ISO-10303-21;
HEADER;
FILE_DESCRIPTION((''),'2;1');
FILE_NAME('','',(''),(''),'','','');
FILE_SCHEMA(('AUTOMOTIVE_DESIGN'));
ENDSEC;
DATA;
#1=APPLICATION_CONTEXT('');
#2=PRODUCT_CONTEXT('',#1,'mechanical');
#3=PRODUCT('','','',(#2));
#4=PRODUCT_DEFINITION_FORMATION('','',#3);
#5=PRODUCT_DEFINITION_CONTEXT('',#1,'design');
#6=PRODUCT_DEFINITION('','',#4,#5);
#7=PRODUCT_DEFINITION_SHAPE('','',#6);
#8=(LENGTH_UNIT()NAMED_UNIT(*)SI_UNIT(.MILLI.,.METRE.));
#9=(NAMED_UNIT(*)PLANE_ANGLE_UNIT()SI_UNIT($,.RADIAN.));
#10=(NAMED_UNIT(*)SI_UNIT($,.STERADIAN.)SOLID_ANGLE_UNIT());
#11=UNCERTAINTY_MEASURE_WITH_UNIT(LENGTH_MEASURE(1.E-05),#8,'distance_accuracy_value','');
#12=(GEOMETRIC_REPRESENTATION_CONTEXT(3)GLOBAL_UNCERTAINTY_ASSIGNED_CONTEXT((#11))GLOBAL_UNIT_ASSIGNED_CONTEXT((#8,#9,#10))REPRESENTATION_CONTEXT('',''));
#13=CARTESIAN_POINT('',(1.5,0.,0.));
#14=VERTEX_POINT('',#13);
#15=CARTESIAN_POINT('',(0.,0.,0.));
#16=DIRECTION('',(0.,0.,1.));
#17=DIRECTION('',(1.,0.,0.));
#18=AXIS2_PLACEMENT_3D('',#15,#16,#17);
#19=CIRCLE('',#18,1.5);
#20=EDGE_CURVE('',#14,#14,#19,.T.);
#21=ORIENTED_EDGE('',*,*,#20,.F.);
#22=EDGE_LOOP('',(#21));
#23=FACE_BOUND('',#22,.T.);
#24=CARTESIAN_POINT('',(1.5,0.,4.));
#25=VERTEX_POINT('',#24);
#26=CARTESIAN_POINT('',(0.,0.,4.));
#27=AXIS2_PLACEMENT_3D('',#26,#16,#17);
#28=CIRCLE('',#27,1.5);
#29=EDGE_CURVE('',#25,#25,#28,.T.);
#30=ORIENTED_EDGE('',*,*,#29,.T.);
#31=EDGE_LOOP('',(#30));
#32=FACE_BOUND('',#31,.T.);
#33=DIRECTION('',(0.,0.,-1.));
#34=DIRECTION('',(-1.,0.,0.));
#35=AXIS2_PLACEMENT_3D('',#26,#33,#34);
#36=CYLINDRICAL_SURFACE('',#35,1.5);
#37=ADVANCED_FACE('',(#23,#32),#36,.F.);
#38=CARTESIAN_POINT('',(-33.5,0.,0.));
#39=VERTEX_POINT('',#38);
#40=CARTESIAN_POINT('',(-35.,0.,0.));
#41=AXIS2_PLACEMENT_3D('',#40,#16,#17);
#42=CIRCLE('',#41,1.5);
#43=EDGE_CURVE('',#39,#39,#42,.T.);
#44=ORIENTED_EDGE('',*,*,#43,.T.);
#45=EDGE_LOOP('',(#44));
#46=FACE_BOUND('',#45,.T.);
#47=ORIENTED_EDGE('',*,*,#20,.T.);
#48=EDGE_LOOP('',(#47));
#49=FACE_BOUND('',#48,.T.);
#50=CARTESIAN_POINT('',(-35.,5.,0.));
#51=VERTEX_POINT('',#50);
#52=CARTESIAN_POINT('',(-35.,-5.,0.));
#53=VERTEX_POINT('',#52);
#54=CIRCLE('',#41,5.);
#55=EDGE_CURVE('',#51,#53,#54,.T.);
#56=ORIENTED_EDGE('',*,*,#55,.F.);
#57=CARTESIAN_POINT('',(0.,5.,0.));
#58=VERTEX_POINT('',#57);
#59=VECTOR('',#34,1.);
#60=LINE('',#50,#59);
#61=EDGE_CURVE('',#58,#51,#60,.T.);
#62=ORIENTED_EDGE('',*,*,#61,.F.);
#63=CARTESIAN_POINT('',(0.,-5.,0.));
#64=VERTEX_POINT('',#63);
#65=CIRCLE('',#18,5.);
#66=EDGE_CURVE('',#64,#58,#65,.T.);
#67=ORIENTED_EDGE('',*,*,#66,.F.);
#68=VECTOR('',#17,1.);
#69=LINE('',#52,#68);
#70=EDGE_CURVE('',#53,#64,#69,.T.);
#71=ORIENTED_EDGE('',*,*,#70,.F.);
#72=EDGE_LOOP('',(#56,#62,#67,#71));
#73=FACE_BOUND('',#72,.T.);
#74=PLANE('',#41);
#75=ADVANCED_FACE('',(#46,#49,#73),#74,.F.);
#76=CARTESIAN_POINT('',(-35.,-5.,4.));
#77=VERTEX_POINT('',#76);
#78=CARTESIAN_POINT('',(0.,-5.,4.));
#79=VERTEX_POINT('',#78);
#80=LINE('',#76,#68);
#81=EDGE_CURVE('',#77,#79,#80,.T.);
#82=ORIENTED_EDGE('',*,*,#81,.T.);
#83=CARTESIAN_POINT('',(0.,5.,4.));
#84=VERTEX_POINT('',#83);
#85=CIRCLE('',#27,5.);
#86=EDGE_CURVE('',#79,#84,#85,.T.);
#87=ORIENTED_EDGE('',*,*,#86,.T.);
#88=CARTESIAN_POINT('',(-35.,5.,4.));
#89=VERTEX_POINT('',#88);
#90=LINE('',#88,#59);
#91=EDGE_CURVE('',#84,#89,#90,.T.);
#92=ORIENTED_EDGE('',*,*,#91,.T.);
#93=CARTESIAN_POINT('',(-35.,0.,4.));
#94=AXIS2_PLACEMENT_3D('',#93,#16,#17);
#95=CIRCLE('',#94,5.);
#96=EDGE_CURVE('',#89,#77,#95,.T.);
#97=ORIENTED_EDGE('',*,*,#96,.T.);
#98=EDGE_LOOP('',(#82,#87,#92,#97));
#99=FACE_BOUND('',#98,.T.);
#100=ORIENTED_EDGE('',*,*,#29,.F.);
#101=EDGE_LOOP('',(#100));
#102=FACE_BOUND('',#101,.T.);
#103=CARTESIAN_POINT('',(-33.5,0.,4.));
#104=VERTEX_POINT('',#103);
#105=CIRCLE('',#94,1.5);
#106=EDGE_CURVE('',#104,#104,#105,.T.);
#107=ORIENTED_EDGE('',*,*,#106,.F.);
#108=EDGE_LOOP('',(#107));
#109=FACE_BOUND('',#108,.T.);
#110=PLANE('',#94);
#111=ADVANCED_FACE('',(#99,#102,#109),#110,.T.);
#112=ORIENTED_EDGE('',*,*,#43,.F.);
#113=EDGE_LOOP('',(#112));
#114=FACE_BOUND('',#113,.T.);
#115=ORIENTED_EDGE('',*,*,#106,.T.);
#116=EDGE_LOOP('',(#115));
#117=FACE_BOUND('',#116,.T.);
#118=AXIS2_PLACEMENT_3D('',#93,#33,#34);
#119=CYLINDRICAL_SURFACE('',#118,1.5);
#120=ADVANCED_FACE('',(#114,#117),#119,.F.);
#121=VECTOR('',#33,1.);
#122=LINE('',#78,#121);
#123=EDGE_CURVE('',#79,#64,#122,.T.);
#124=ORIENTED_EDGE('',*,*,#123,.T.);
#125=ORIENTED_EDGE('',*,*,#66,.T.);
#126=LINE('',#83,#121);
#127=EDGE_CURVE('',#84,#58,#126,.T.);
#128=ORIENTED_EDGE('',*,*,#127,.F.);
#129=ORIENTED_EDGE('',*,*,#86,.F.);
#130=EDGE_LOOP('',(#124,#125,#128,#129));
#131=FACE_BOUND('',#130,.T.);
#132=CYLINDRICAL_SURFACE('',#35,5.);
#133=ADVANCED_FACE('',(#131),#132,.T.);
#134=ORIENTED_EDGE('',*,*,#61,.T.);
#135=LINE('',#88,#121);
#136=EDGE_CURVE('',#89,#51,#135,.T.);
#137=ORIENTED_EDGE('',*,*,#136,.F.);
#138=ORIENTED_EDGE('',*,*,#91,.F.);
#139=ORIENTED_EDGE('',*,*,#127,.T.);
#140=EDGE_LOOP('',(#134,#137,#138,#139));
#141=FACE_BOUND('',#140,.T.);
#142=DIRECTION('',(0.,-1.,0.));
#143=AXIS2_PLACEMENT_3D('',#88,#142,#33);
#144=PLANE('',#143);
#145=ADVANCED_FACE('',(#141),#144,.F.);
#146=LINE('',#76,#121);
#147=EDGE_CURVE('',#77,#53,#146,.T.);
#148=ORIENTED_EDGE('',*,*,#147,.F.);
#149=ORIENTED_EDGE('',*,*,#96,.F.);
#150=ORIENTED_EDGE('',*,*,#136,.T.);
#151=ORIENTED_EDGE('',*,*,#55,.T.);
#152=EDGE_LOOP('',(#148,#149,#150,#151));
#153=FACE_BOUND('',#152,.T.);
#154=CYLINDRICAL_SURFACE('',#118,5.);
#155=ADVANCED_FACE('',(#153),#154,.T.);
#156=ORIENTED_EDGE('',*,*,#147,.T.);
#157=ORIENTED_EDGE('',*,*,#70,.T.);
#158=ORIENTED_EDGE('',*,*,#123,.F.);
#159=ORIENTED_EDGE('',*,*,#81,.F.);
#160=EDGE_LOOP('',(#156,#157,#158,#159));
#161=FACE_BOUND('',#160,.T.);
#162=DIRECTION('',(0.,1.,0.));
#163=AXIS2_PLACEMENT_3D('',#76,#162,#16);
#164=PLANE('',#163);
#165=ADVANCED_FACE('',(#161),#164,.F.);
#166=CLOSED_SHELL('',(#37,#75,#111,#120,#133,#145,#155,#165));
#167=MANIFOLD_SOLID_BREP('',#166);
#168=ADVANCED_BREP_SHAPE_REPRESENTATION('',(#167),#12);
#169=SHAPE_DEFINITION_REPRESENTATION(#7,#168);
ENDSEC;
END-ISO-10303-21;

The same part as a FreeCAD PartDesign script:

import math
import FreeCAD as App
import Part
import Sketcher

doc = App.newDocument("Part")
params = doc.addObject("Spreadsheet::Sheet", "Params")
for row, (alias, value) in enumerate([
    ("sketch1_diameter", "3 mm"),
    ("sketch1_radius", "5 mm"),
    ("sketch1_width", "35 mm"),
    ("pad1_length", "4 mm"),
], start=1):
    params.set(f"A{row}", alias)
    params.set(f"B{row}", "=" + value)
    params.setAlias(f"B{row}", alias)

body = doc.addObject("PartDesign::Body", "Body")

sketch1 = body.newObject("Sketcher::SketchObject", "Sketch")
sketch1.AttachmentSupport = (doc.getObject("XY_Plane"), [""])
sketch1.MapMode = "FlatFace"
sketch1.addGeometry([
    Part.LineSegment(App.Vector(0, 5, 0), App.Vector(-35, 5, 0)),
    Part.ArcOfCircle(Part.Circle(App.Vector(-35, 0, 0), App.Vector(0, 0, 1), 5), math.radians(90), math.radians(270)),
    Part.LineSegment(App.Vector(-35, -5, 0), App.Vector(0, -5, 0)),
    Part.ArcOfCircle(Part.Circle(App.Vector(0, 0, 0), App.Vector(0, 0, 1), 5), math.radians(-90), math.radians(90)),
    Part.Circle(App.Vector(0, 0, 0), App.Vector(0, 0, 1), 1.5),
    Part.Circle(App.Vector(-35, 0, 0), App.Vector(0, 0, 1), 1.5),
], False)
sketch1.addConstraint([
    Sketcher.Constraint("Tangent", 0, 2, 1, 1),
    Sketcher.Constraint("Tangent", 1, 2, 2, 1),
    Sketcher.Constraint("Tangent", 2, 2, 3, 1),
    Sketcher.Constraint("Tangent", 3, 2, 0, 1),
    Sketcher.Constraint("Horizontal", 0),
    Sketcher.Constraint("Horizontal", 2),
    Sketcher.Constraint("Coincident", 3, 3, -1, 1),
    Sketcher.Constraint("Coincident", 4, 3, -1, 1),
    Sketcher.Constraint("Coincident", 5, 3, 1, 3),
    Sketcher.Constraint("Equal", 4, 5),
    Sketcher.Constraint("Diameter", 4, 3.0),
    Sketcher.Constraint("Radius", 1, 5.0),
    Sketcher.Constraint("DistanceX", 0, 2, 0, 1, 35.0),
])
sketch1.setExpression("Constraints[10]", "Params.sketch1_diameter")
sketch1.setExpression("Constraints[11]", "Params.sketch1_radius")
sketch1.setExpression("Constraints[12]", "Params.sketch1_width")
pad1 = body.newObject("PartDesign::Pad", "Pad")
pad1.Profile = sketch1
pad1.setExpression("Length", "Params.pad1_length")

doc.recompute()
